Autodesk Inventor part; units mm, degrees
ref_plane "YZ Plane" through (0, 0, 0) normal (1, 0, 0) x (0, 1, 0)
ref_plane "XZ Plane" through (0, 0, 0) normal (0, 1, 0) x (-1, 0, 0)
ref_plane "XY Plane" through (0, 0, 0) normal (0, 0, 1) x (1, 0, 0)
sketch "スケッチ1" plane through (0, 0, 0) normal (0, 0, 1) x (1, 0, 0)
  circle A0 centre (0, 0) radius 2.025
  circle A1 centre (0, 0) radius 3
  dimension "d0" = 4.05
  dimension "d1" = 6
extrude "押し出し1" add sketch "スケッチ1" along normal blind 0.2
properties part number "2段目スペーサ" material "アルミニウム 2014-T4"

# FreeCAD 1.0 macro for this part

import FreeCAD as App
import Part
import Sketcher

doc = App.newDocument("Part")
body = doc.addObject("PartDesign::Body", "Body")

# Sketch on XY plane
sketch1 = body.newObject("Sketcher::SketchObject", "Sketch")
sketch1.AttachmentSupport = (doc.getObject("XY_Plane"), [""])
sketch1.MapMode = "FlatFace"
sketch1.addGeometry(Part.Circle(App.Vector(0, 0, 0), App.Vector(0, 0, 1), 3), False)
sketch1.addGeometry(Part.Circle(App.Vector(0, 0, 0), App.Vector(0, 0, 1), 2), False)
sketch1.addConstraint(Sketcher.Constraint("Coincident", 0, 3, -1, 1))
sketch1.addConstraint(Sketcher.Constraint("Coincident", 1, 3, -1, 1))
sketch1.addConstraint(Sketcher.Constraint("Diameter", 0, 6.0))
sketch1.addConstraint(Sketcher.Constraint("Diameter", 1, 4.05))
pad1 = body.newObject("PartDesign::Pad", "Pad")
pad1.Profile = sketch1
pad1.Length = 0.2

doc.recompute()
